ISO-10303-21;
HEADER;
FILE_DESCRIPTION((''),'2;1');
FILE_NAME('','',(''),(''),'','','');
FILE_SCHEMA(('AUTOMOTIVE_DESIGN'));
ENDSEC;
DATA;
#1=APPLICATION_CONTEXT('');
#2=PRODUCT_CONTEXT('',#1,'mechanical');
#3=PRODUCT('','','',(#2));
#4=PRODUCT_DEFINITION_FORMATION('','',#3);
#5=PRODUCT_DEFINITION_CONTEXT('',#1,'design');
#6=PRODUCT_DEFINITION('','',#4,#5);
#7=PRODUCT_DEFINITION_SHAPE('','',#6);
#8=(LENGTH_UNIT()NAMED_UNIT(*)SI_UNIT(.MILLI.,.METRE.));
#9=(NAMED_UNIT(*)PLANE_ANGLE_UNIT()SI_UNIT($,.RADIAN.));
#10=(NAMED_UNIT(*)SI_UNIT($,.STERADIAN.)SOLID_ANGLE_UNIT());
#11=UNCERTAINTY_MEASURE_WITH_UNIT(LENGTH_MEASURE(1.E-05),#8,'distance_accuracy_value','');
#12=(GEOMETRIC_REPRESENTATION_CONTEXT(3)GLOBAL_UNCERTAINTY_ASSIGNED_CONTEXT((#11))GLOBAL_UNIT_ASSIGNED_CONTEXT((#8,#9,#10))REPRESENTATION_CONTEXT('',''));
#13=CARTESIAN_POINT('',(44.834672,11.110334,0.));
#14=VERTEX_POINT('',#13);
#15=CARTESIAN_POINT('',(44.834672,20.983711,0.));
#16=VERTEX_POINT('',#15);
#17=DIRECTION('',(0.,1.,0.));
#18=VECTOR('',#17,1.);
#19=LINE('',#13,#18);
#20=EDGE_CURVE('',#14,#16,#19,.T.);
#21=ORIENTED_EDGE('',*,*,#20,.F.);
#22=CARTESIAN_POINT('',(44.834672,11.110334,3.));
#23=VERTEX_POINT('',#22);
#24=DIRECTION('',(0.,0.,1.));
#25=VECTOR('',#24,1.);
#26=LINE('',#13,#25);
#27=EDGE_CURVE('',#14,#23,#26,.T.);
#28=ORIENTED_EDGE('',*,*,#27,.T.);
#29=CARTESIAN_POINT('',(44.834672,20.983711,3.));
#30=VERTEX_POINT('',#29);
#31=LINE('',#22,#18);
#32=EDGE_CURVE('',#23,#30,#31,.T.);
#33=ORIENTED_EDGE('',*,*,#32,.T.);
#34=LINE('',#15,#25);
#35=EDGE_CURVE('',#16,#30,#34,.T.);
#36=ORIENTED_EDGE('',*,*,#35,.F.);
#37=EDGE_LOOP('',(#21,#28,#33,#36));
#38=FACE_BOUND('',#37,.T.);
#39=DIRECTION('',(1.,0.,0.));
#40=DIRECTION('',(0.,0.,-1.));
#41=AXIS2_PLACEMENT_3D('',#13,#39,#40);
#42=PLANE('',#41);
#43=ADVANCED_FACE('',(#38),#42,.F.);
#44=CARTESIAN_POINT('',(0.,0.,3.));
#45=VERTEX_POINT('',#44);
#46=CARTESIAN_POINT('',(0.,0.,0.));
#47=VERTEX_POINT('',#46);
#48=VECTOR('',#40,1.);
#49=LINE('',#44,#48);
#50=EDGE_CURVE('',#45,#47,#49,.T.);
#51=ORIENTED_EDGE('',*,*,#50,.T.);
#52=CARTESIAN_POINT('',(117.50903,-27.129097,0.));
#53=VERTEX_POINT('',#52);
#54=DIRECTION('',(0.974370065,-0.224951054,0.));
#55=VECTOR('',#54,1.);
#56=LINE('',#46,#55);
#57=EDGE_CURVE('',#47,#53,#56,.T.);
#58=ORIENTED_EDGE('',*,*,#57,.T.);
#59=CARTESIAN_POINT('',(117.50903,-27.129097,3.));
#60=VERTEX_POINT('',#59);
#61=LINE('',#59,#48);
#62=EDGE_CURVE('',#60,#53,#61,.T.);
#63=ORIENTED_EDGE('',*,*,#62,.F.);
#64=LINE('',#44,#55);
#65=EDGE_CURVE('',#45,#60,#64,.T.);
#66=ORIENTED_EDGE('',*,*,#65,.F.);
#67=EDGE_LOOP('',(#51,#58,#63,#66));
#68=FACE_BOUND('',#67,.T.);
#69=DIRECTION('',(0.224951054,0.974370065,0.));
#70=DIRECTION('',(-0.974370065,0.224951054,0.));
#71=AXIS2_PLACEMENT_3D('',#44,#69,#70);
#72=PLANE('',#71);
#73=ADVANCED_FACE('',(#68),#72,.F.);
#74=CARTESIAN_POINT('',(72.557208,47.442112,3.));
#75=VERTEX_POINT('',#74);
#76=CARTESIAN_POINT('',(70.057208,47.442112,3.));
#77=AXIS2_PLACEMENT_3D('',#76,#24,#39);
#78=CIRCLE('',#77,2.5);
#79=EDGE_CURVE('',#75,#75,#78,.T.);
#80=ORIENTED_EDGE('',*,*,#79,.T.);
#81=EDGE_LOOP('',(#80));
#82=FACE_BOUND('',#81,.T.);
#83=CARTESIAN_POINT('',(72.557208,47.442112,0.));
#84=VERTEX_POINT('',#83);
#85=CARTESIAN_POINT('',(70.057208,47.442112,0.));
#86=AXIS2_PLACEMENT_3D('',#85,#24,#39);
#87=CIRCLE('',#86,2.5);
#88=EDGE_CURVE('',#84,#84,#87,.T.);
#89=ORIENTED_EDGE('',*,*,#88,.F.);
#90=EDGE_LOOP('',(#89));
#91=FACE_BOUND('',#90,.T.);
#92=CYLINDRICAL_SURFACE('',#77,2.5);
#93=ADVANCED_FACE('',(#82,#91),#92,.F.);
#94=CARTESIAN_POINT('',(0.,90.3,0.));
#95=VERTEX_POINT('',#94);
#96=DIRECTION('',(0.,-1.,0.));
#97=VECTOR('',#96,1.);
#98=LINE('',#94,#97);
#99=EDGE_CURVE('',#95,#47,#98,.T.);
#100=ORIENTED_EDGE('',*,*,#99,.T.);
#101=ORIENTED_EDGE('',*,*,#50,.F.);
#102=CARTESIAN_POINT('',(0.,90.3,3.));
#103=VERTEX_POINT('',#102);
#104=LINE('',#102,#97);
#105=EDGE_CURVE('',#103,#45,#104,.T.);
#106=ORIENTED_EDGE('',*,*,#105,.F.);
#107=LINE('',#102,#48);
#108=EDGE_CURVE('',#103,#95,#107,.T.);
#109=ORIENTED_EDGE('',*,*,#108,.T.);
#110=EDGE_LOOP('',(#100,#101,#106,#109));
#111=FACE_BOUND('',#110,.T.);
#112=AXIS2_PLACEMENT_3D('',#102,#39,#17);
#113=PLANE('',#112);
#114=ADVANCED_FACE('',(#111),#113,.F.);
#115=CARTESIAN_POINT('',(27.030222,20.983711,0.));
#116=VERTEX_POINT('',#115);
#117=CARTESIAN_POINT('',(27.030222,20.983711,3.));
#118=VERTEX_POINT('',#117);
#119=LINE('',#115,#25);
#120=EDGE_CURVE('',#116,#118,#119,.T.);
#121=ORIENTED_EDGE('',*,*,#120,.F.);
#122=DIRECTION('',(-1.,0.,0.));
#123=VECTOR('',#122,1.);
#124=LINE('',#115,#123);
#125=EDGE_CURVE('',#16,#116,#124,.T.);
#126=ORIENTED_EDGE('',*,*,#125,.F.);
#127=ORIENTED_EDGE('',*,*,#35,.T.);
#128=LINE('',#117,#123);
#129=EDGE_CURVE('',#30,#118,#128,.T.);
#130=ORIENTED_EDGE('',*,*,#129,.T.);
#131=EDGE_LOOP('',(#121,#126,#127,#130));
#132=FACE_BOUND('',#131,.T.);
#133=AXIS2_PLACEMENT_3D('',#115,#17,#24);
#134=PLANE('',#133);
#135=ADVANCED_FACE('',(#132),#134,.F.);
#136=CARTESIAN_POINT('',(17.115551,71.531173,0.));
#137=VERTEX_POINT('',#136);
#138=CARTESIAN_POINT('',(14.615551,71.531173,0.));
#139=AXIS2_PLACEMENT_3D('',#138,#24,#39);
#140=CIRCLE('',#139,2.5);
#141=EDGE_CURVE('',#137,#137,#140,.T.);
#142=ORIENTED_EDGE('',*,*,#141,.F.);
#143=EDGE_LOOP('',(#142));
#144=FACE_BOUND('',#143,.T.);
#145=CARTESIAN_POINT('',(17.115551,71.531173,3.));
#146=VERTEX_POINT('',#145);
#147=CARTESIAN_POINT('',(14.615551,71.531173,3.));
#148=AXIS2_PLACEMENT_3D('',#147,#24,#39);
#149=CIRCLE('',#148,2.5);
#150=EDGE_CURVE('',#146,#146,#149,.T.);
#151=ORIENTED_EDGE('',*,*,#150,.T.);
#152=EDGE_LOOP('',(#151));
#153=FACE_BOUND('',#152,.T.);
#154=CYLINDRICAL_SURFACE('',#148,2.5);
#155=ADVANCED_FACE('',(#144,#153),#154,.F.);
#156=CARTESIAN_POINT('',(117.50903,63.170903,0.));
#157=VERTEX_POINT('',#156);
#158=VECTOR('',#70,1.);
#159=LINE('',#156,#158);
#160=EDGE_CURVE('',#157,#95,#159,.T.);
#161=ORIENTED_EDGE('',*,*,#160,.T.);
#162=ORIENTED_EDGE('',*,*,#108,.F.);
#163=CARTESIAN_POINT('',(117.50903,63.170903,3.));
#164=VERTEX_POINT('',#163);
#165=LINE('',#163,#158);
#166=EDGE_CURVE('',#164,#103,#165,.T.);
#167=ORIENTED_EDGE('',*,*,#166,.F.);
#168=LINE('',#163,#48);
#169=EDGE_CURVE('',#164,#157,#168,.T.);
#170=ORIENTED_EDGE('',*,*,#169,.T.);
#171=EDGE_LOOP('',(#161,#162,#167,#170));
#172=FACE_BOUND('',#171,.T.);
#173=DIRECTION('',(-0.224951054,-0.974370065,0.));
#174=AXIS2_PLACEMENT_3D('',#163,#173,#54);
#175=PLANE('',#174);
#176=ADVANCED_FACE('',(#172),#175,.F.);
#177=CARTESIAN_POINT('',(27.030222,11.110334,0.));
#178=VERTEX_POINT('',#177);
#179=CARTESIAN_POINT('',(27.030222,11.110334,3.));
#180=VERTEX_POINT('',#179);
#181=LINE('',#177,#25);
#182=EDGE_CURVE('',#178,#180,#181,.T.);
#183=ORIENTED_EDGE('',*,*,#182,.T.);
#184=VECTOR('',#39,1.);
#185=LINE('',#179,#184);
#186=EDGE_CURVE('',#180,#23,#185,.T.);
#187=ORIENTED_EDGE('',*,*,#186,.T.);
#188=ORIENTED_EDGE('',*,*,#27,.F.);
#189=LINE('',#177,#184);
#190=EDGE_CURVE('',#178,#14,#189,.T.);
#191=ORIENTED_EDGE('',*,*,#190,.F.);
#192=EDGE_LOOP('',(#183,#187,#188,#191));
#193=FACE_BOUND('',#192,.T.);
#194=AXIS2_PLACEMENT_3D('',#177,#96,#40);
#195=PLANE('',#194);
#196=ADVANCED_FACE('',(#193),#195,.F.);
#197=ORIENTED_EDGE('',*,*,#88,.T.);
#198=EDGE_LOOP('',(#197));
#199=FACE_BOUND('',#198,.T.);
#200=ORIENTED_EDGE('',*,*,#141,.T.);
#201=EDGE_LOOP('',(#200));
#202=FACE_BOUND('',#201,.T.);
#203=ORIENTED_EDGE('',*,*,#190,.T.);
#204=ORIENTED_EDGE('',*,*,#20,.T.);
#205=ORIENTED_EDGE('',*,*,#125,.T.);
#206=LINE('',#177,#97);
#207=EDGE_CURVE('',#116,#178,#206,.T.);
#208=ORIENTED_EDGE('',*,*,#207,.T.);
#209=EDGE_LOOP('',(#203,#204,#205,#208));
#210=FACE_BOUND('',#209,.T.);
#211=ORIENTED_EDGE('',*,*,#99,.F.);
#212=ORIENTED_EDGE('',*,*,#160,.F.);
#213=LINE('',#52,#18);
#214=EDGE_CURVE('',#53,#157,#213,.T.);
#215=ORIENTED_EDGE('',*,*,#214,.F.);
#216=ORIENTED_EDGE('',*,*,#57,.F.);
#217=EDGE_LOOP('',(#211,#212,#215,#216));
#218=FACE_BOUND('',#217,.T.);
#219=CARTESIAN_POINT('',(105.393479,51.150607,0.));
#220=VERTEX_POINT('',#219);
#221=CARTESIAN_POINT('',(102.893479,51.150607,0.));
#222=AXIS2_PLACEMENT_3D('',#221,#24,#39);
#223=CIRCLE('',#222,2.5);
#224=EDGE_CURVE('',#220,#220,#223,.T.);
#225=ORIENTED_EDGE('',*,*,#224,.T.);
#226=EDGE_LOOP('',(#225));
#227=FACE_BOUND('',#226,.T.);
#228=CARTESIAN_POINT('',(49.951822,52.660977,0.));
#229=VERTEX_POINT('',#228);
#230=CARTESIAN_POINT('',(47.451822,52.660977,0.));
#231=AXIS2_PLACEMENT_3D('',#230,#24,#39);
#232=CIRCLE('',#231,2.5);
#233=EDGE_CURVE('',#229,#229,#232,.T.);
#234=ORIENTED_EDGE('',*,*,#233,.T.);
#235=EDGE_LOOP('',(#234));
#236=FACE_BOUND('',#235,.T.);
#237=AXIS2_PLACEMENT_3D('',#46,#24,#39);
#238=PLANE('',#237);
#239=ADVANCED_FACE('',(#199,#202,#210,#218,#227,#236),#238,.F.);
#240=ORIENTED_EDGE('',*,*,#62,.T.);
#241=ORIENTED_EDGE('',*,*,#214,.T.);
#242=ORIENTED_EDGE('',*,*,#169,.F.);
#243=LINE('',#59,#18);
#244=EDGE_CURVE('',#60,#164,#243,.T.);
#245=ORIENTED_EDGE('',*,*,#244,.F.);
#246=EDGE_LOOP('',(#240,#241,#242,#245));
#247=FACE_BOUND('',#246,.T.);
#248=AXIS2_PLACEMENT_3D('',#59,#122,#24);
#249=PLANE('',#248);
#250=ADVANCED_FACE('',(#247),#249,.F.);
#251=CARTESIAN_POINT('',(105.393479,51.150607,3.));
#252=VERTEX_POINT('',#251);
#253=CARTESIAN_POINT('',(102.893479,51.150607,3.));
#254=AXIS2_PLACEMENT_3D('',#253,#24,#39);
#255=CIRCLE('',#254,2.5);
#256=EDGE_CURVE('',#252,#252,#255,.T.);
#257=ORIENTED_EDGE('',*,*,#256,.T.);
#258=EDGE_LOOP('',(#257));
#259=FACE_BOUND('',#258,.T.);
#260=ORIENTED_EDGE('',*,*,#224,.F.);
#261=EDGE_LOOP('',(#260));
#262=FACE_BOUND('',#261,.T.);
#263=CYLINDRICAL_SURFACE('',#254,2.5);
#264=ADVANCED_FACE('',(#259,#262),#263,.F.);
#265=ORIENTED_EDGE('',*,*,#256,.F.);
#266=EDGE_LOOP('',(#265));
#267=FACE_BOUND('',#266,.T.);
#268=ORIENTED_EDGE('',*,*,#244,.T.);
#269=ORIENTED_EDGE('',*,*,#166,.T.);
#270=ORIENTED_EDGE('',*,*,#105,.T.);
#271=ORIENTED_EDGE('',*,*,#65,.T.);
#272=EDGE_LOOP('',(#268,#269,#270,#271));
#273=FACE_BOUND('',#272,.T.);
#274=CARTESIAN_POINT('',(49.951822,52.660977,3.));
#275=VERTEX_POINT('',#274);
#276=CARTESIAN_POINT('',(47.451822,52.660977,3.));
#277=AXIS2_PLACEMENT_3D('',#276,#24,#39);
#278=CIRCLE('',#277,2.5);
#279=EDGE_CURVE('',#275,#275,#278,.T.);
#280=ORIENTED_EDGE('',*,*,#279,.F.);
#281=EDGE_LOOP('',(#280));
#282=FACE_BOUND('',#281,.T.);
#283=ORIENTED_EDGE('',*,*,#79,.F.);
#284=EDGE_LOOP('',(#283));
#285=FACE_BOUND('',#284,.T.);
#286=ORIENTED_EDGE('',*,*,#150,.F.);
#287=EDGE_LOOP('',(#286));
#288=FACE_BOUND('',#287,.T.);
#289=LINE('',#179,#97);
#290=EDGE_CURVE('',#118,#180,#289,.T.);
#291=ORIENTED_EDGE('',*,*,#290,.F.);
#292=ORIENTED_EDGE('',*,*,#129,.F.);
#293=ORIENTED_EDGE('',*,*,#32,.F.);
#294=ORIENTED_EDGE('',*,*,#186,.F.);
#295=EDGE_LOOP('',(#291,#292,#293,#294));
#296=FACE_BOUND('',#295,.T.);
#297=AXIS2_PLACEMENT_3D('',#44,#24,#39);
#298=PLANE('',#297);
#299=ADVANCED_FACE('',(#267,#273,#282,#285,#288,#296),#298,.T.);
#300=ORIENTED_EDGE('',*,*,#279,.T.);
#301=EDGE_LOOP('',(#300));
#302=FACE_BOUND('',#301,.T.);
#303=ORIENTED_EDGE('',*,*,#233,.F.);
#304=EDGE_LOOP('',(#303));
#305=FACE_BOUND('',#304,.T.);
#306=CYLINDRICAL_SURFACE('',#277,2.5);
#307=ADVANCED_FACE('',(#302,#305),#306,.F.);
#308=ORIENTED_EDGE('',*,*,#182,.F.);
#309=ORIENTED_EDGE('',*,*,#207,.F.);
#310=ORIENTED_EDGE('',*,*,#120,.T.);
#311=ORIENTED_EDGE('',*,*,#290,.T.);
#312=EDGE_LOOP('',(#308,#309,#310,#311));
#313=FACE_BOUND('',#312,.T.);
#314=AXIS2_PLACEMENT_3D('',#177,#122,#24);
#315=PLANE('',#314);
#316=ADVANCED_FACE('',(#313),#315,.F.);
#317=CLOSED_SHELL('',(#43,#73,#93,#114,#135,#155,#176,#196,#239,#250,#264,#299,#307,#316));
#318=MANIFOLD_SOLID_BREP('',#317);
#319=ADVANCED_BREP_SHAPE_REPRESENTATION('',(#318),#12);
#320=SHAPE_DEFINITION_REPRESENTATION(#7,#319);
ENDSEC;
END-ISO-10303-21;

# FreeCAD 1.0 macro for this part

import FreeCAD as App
import Part
import Sketcher

V = App.Vector
Q = App.Units.Quantity

doc = App.newDocument("Part")
body = doc.addObject("PartDesign::Body", "Body")

sketch1 = body.newObject("Sketcher::SketchObject", "Sketch")
sketch1.AttachmentSupport = (doc.getObject("XY_Plane"), [""])
sketch1.MapMode = "FlatFace"
sketch1.addGeometry(Part.LineSegment(V(0, 0, 0), V(118, -27, 0)), False)
sketch1.addGeometry(Part.LineSegment(V(118, -27, 0), V(118, 63, 0)), False)
sketch1.addGeometry(Part.LineSegment(V(118, 63, 0), V(0, 90, 0)), False)
sketch1.addGeometry(Part.LineSegment(V(0, 90, 0), V(0, 0, 0)), False)
sketch1.addConstraint(Sketcher.Constraint("Coincident", 0, 2, 1, 1))
sketch1.addConstraint(Sketcher.Constraint("Coincident", 1, 2, 2, 1))
sketch1.addConstraint(Sketcher.Constraint("Coincident", 2, 2, 3, 1))
sketch1.addConstraint(Sketcher.Constraint("Coincident", 3, 2, 0, 1))
sketch1.addConstraint(Sketcher.Constraint("Vertical", 1))
sketch1.addConstraint(Sketcher.Constraint("Vertical", 3))
sketch1.addConstraint(Sketcher.Constraint("Coincident", 3, 2, -1, 1))
sketch1.addConstraint(Sketcher.Constraint("Parallel", 0, 2))
sketch1.addConstraint(Sketcher.Constraint("Angle", 0, Q("-13 deg")))
sketch1.addConstraint(Sketcher.Constraint("DistanceY", 1, 1, 1, 2, Q("90.3 mm")))
sketch1.addConstraint(Sketcher.Constraint("Distance", 0, Q("120.6 mm")))
pad1 = body.newObject("PartDesign::Pad", "Pad")
pad1.Profile = sketch1
pad1.Length = 3

sketch2 = body.newObject("Sketcher::SketchObject", "Sketch001")
sketch2.AttachmentSupport = (doc.getObject("XY_Plane"), [""])
sketch2.MapMode = "FlatFace"
sketch2.AttachmentOffset = App.Placement(V(0, 0, 3), App.Rotation())
sketch2.addGeometry(Part.Circle(V(14.6, 71.5, 0), V(0, 0, 1), 2.5), False)
sketch2.addGeometry(Part.Circle(V(102.9, 51.2, 0), V(0, 0, 1), 2.5), False)
sketch2.addGeometry(Part.Circle(V(70.1, 47.4, 0), V(0, 0, 1), 2.5), False)
sketch2.addGeometry(Part.Circle(V(47.5, 52.7, 0), V(0, 0, 1), 2.5), False)
sketch2.addConstraint(Sketcher.Constraint("Equal", 0, 1))
sketch2.addConstraint(Sketcher.Constraint("Equal", 1, 2))
sketch2.addConstraint(Sketcher.Constraint("Equal", 2, 3))
sketch2.addConstraint(Sketcher.Constraint("Diameter", 0, Q("5 mm")))
sketch2.addConstraint(Sketcher.Constraint("DistanceX", -1, 1, 0, 3, Q("14.615551 mm")))
sketch2.addConstraint(Sketcher.Constraint("DistanceX", -1, 1, 1, 3, Q("102.893479 mm")))
sketch2.addConstraint(Sketcher.Constraint("DistanceX", 2, 3, 1, 3, Q("32.836271 mm")))
sketch2.addConstraint(Sketcher.Constraint("DistanceY", 2, 3, 0, 3, Q("24.08906 mm")))
sketch2.addConstraint(Sketcher.Constraint("DistanceX", 0, 3, 3, 3, Q("32.836271 mm")))
sketch2.addConstraint(Sketcher.Constraint("DistanceY", 1, 3, 3, 3, Q("1.51037 mm")))
sketch2.addConstraint(Sketcher.Constraint("DistanceY", -1, 1, 0, 3, Q("71.531173 mm")))
sketch2.addConstraint(Sketcher.Constraint("DistanceY", -1, 1, 1, 3, Q("51.150607 mm")))
doc.recompute()
hole = body.newObject("PartDesign::Hole", "Hole")
hole.Profile = sketch2
hole.ThreadType = "None"
hole.Diameter = 5
hole.DepthType = "ThroughAll"

sketch3 = body.newObject("Sketcher::SketchObject", "Sketch002")
sketch3.AttachmentSupport = (doc.getObject("XY_Plane"), [""])
sketch3.MapMode = "FlatFace"
sketch3.AttachmentOffset = App.Placement(V(0, 0, 3), App.Rotation())
sketch3.addGeometry(Part.LineSegment(V(27, 21, 0), V(27, 11, 0)), False)
sketch3.addGeometry(Part.LineSegment(V(27, 11, 0), V(45, 11, 0)), False)
sketch3.addGeometry(Part.LineSegment(V(45, 11, 0), V(45, 21, 0)), False)
sketch3.addGeometry(Part.LineSegment(V(45, 21, 0), V(27, 21, 0)), False)
sketch3.addConstraint(Sketcher.Constraint("Coincident", 0, 2, 1, 1))
sketch3.addConstraint(Sketcher.Constraint("Coincident", 1, 2, 2, 1))
sketch3.addConstraint(Sketcher.Constraint("Coincident", 2, 2, 3, 1))
sketch3.addConstraint(Sketcher.Constraint("Coincident", 3, 2, 0, 1))
sketch3.addConstraint(Sketcher.Constraint("Vertical", 0))
sketch3.addConstraint(Sketcher.Constraint("Horizontal", 1))
sketch3.addConstraint(Sketcher.Constraint("Vertical", 2))
sketch3.addConstraint(Sketcher.Constraint("Horizontal", 3))
sketch3.addConstraint(Sketcher.Constraint("DistanceX", 1, 1, 1, 2, Q("17.80445 mm")))
sketch3.addConstraint(Sketcher.Constraint("DistanceY", 0, 2, 0, 1, Q("9.873377 mm")))
sketch3.addConstraint(Sketcher.Constraint("DistanceY", -1, 1, 2, 2, Q("20.983711 mm")))
sketch3.addConstraint(Sketcher.Constraint("DistanceX", -1, 1, 0, 2, Q("27.030222 mm")))
pocket1 = body.newObject("PartDesign::Pocket", "Pocket")
pocket1.Profile = sketch3
pocket1.Type = "ThroughAll"

doc.recompute()
